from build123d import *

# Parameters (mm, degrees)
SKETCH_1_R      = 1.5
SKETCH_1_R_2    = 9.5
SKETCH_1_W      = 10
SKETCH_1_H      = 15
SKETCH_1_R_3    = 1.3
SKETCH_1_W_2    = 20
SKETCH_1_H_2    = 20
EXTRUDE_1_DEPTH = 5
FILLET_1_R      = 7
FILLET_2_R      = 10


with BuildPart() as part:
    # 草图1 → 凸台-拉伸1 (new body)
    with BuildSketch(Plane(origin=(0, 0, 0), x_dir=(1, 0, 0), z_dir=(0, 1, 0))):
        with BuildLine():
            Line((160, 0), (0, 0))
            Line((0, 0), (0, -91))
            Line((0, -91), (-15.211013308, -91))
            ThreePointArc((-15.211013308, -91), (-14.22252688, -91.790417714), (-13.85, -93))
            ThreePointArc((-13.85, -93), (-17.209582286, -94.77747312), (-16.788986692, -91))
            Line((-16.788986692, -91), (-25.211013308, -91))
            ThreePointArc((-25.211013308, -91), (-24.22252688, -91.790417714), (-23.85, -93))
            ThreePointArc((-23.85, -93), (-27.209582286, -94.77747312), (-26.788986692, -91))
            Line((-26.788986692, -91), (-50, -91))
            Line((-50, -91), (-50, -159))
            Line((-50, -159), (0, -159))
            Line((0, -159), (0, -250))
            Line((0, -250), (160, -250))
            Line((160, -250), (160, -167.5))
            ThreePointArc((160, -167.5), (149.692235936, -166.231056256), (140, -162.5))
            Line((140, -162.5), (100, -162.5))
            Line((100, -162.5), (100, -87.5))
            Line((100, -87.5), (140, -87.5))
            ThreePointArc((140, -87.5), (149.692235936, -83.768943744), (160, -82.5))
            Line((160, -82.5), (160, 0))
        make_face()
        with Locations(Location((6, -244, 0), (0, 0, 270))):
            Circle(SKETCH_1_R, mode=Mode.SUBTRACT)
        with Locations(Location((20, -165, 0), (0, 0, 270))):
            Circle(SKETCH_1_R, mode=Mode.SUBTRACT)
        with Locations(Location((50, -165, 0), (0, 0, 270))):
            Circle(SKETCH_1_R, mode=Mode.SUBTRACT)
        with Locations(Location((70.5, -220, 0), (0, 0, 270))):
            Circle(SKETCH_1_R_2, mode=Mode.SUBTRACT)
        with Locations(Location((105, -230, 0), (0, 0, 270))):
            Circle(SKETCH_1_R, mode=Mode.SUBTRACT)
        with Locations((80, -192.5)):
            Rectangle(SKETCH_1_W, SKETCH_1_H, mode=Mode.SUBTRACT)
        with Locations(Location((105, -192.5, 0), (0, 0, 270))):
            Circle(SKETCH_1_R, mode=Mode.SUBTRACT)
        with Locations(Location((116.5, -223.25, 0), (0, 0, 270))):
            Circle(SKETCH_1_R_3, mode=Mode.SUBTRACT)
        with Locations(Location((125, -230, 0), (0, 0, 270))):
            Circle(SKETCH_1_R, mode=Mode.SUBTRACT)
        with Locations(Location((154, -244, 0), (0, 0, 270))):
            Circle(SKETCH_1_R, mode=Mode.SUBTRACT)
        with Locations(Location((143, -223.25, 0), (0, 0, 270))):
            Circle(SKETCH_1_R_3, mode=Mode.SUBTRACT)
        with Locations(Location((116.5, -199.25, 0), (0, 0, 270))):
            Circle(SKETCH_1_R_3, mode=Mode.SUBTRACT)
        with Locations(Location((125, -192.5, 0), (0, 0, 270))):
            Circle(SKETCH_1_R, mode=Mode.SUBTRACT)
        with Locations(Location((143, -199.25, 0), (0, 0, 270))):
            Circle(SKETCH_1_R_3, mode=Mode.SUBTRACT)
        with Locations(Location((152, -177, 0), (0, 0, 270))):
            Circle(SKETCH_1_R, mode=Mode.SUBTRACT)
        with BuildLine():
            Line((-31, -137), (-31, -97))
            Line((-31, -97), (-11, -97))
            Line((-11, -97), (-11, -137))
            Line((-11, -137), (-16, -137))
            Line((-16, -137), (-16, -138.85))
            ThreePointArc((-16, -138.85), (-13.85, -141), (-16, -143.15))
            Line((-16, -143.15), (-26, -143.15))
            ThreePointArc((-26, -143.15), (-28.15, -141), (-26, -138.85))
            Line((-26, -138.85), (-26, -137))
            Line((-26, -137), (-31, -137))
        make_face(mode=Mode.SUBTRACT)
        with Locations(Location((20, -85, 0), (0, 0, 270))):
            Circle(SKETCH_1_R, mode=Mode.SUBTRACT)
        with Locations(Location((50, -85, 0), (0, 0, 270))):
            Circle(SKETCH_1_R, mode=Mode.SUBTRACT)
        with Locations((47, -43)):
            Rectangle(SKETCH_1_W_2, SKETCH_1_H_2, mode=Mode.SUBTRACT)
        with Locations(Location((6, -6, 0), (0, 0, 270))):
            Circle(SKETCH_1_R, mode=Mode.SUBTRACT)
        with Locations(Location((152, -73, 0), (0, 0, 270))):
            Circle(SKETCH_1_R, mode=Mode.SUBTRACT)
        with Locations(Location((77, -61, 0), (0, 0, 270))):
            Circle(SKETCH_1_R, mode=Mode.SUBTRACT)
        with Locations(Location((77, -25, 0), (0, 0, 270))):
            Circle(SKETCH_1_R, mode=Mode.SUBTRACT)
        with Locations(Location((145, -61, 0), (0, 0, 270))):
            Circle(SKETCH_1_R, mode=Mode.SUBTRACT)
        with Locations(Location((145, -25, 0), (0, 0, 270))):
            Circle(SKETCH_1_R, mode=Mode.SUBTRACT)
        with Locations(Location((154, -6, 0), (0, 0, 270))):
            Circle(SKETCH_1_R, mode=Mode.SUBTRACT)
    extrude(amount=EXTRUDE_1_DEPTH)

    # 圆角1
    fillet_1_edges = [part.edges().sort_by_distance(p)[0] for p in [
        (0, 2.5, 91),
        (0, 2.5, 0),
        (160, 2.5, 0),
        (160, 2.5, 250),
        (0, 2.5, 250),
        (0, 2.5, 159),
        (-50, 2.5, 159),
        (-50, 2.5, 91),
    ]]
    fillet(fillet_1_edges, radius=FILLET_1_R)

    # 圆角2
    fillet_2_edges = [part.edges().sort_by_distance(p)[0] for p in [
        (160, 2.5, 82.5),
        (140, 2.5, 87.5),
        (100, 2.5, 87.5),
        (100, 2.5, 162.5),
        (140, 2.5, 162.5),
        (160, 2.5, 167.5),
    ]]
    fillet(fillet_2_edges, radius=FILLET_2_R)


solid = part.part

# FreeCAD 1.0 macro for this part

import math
import FreeCAD as App
import Part
import Sketcher
Q = App.Units.Quantity


def edges_at(feature, points):
    """Names of the edges that pass closest to the given points."""
    edges = feature.Shape.Edges
    near = lambda p: min(range(len(edges)), key=lambda i: edges[i].distToShape(Part.Vertex(*p))[0])
    return sorted({f"Edge{near(p) + 1}" for p in points})

doc = App.newDocument("Part")
body = doc.addObject("PartDesign::Body", "Body")

sketch1 = body.newObject("Sketcher::SketchObject", "Sketch")
sketch1.AttachmentSupport = (doc.getObject("XZ_Plane"), [""])
sketch1.MapMode = "FlatFace"
sketch1.addGeometry(Part.LineSegment(App.Vector(160, 0, 0), App.Vector(0, 0, 0)), False)
sketch1.addGeometry(Part.LineSegment(App.Vector(0, 0, 0), App.Vector(0, 91, 0)), False)
sketch1.addGeometry(Part.LineSegment(App.Vector(0, 91, 0), App.Vector(-15.211013, 91, 0)), False)
sketch1.addGeometry(Part.ArcOfCircle(Part.Circle(App.Vector(-16, 93, 0), App.Vector(0, 0, 1), 2.15), math.radians(-68.471096), math.radians(0)), False)
sketch1.addGeometry(Part.ArcOfCircle(Part.Circle(App.Vector(-16, 93, 0), App.Vector(0, 0, 1), 2.15), math.radians(0), math.radians(248.471096)), False)
sketch1.addGeometry(Part.LineSegment(App.Vector(-16.788987, 91, 0), App.Vector(-25.211013, 91, 0)), False)
sketch1.addGeometry(Part.ArcOfCircle(Part.Circle(App.Vector(-26, 93, 0), App.Vector(0, 0, 1), 2.15), math.radians(-68.471096), math.radians(0)), False)
sketch1.addGeometry(Part.ArcOfCircle(Part.Circle(App.Vector(-26, 93, 0), App.Vector(0, 0, 1), 2.15), math.radians(0), math.radians(248.471096)), False)
sketch1.addGeometry(Part.LineSegment(App.Vector(-26.788987, 91, 0), App.Vector(-50, 91, 0)), False)
sketch1.addGeometry(Part.LineSegment(App.Vector(-50, 91, 0), App.Vector(-50, 159, 0)), False)
sketch1.addGeometry(Part.LineSegment(App.Vector(-50, 159, 0), App.Vector(0, 159, 0)), False)
sketch1.addGeometry(Part.LineSegment(App.Vector(0, 159, 0), App.Vector(0, 250, 0)), False)
sketch1.addGeometry(Part.LineSegment(App.Vector(0, 250, 0), App.Vector(160, 250, 0)), False)
sketch1.addGeometry(Part.LineSegment(App.Vector(160, 250, 0), App.Vector(160, 167.5, 0)), False)
sketch1.addGeometry(Part.ArcOfCircle(Part.Circle(App.Vector(160, 125, 0), App.Vector(0, 0, 1), 42.5), math.radians(90), math.radians(118.072487)), False)
sketch1.addGeometry(Part.LineSegment(App.Vector(140, 162.5, 0), App.Vector(100, 162.5, 0)), False)
sketch1.addGeometry(Part.LineSegment(App.Vector(100, 162.5, 0), App.Vector(100, 87.5, 0)), False)
sketch1.addGeometry(Part.LineSegment(App.Vector(100, 87.5, 0), App.Vector(140, 87.5, 0)), False)
sketch1.addGeometry(Part.ArcOfCircle(Part.Circle(App.Vector(160, 125, 0), App.Vector(0, 0, 1), 42.5), math.radians(-118.072487), math.radians(-90)), False)
sketch1.addGeometry(Part.LineSegment(App.Vector(160, 82.5, 0), App.Vector(160, 0, 0)), False)
sketch1.addGeometry(Part.Circle(App.Vector(6, 244, 0), App.Vector(0, 0, 1), 1.5), False)
sketch1.addGeometry(Part.Circle(App.Vector(20, 165, 0), App.Vector(0, 0, 1), 1.5), False)
sketch1.addGeometry(Part.Circle(App.Vector(50, 165, 0), App.Vector(0, 0, 1), 1.5), False)
sketch1.addGeometry(Part.Circle(App.Vector(70.5, 220, 0), App.Vector(0, 0, 1), 9.5), False)
sketch1.addGeometry(Part.Circle(App.Vector(105, 230, 0), App.Vector(0, 0, 1), 1.5), False)
sketch1.addGeometry(Part.LineSegment(App.Vector(85, 200, 0), App.Vector(75, 200, 0)), False)
sketch1.addGeometry(Part.LineSegment(App.Vector(75, 200, 0), App.Vector(75, 185, 0)), False)
sketch1.addGeometry(Part.LineSegment(App.Vector(75, 185, 0), App.Vector(85, 185, 0)), False)
sketch1.addGeometry(Part.LineSegment(App.Vector(85, 185, 0), App.Vector(85, 200, 0)), False)
sketch1.addGeometry(Part.Circle(App.Vector(105, 192.5, 0), App.Vector(0, 0, 1), 1.5), False)
sketch1.addGeometry(Part.Circle(App.Vector(116.5, 223.25, 0), App.Vector(0, 0, 1), 1.3), False)
sketch1.addGeometry(Part.Circle(App.Vector(125, 230, 0), App.Vector(0, 0, 1), 1.5), False)
sketch1.addGeometry(Part.Circle(App.Vector(154, 244, 0), App.Vector(0, 0, 1), 1.5), False)
sketch1.addGeometry(Part.Circle(App.Vector(143, 223.25, 0), App.Vector(0, 0, 1), 1.3), False)
sketch1.addGeometry(Part.Circle(App.Vector(116.5, 199.25, 0), App.Vector(0, 0, 1), 1.3), False)
sketch1.addGeometry(Part.Circle(App.Vector(125, 192.5, 0), App.Vector(0, 0, 1), 1.5), False)
sketch1.addGeometry(Part.Circle(App.Vector(143, 199.25, 0), App.Vector(0, 0, 1), 1.3), False)
sketch1.addGeometry(Part.Circle(App.Vector(152, 177, 0), App.Vector(0, 0, 1), 1.5), False)
sketch1.addGeometry(Part.LineSegment(App.Vector(-26, 137, 0), App.Vector(-31, 137, 0)), False)
sketch1.addGeometry(Part.LineSegment(App.Vector(-31, 137, 0), App.Vector(-31, 97, 0)), False)
sketch1.addGeometry(Part.LineSegment(App.Vector(-31, 97, 0), App.Vector(-11, 97, 0)), False)
sketch1.addGeometry(Part.LineSegment(App.Vector(-11, 97, 0), App.Vector(-11, 137, 0)), False)
sketch1.addGeometry(Part.LineSegment(App.Vector(-11, 137, 0), App.Vector(-16, 137, 0)), False)
sketch1.addGeometry(Part.LineSegment(App.Vector(-16, 137, 0), App.Vector(-16, 138.85, 0)), False)
sketch1.addGeometry(Part.ArcOfCircle(Part.Circle(App.Vector(-16, 141, 0), App.Vector(0, 0, 1), 2.15), math.radians(-90), math.radians(90)), False)
sketch1.addGeometry(Part.LineSegment(App.Vector(-16, 143.15, 0), App.Vector(-26, 143.15, 0)), False)
sketch1.addGeometry(Part.ArcOfCircle(Part.Circle(App.Vector(-26, 141, 0), App.Vector(0, 0, 1), 2.15), math.radians(90), math.radians(270)), False)
sketch1.addGeometry(Part.LineSegment(App.Vector(-26, 138.85, 0), App.Vector(-26, 137, 0)), False)
sketch1.addGeometry(Part.Circle(App.Vector(20, 85, 0), App.Vector(0, 0, 1), 1.5), False)
sketch1.addGeometry(Part.Circle(App.Vector(50, 85, 0), App.Vector(0, 0, 1), 1.5), False)
sketch1.addGeometry(Part.Circle(App.Vector(6, 6, 0), App.Vector(0, 0, 1), 1.5), False)
sketch1.addGeometry(Part.LineSegment(App.Vector(57, 53, 0), App.Vector(37, 53, 0)), False)
sketch1.addGeometry(Part.LineSegment(App.Vector(37, 53, 0), App.Vector(37, 33, 0)), False)
sketch1.addGeometry(Part.LineSegment(App.Vector(37, 33, 0), App.Vector(57, 33, 0)), False)
sketch1.addGeometry(Part.LineSegment(App.Vector(57, 33, 0), App.Vector(57, 53, 0)), False)
sketch1.addGeometry(Part.Circle(App.Vector(152, 73, 0), App.Vector(0, 0, 1), 1.5), False)
sketch1.addGeometry(Part.Circle(App.Vector(77, 61, 0), App.Vector(0, 0, 1), 1.5), False)
sketch1.addGeometry(Part.Circle(App.Vector(77, 25, 0), App.Vector(0, 0, 1), 1.5), False)
sketch1.addGeometry(Part.Circle(App.Vector(145, 61, 0), App.Vector(0, 0, 1), 1.5), False)
sketch1.addGeometry(Part.Circle(App.Vector(145, 25, 0), App.Vector(0, 0, 1), 1.5), False)
sketch1.addGeometry(Part.Circle(App.Vector(154, 6, 0), App.Vector(0, 0, 1), 1.5), False)
sketch1.addConstraint(Sketcher.Constraint("Coincident", 0, 2, 1, 1))
sketch1.addConstraint(Sketcher.Constraint("Coincident", 1, 2, 2, 1))
sketch1.addConstraint(Sketcher.Constraint("Coincident", 2, 2, 3, 1))
sketch1.addConstraint(Sketcher.Constraint("Tangent", 3, 2, 4, 1))
sketch1.addConstraint(Sketcher.Constraint("Coincident", 4, 2, 5, 1))
sketch1.addConstraint(Sketcher.Constraint("Coincident", 5, 2, 6, 1))
sketch1.addConstraint(Sketcher.Constraint("Tangent", 6, 2, 7, 1))
sketch1.addConstraint(Sketcher.Constraint("Coincident", 7, 2, 8, 1))
sketch1.addConstraint(Sketcher.Constraint("Coincident", 8, 2, 9, 1))
sketch1.addConstraint(Sketcher.Constraint("Coincident", 9, 2, 10, 1))
sketch1.addConstraint(Sketcher.Constraint("Coincident", 10, 2, 11, 1))
sketch1.addConstraint(Sketcher.Constraint("Coincident", 11, 2, 12, 1))
sketch1.addConstraint(Sketcher.Constraint("Coincident", 12, 2, 13, 1))
sketch1.addConstraint(Sketcher.Constraint("Coincident", 13, 2, 14, 1))
sketch1.addConstraint(Sketcher.Constraint("Coincident", 14, 2, 15, 1))
sketch1.addConstraint(Sketcher.Constraint("Coincident", 15, 2, 16, 1))
sketch1.addConstraint(Sketcher.Constraint("Coincident", 16, 2, 17, 1))
sketch1.addConstraint(Sketcher.Constraint("Coincident", 17, 2, 18, 1))
sketch1.addConstraint(Sketcher.Constraint("Coincident", 18, 2, 19, 1))
sketch1.addConstraint(Sketcher.Constraint("Coincident", 19, 2, 0, 1))
sketch1.addConstraint(Sketcher.Constraint("Coincident", 25, 2, 26, 1))
sketch1.addConstraint(Sketcher.Constraint("Coincident", 26, 2, 27, 1))
sketch1.addConstraint(Sketcher.Constraint("Coincident", 27, 2, 28, 1))
sketch1.addConstraint(Sketcher.Constraint("Coincident", 28, 2, 25, 1))
sketch1.addConstraint(Sketcher.Constraint("Coincident", 38, 2, 39, 1))
sketch1.addConstraint(Sketcher.Constraint("Coincident", 39, 2, 40, 1))
sketch1.addConstraint(Sketcher.Constraint("Coincident", 40, 2, 41, 1))
sketch1.addConstraint(Sketcher.Constraint("Coincident", 41, 2, 42, 1))
sketch1.addConstraint(Sketcher.Constraint("Coincident", 42, 2, 43, 1))
sketch1.addConstraint(Sketcher.Constraint("Coincident", 43, 2, 44, 1))
sketch1.addConstraint(Sketcher.Constraint("Tangent", 44, 2, 45, 1))
sketch1.addConstraint(Sketcher.Constraint("Tangent", 45, 2, 46, 1))
sketch1.addConstraint(Sketcher.Constraint("Coincident", 46, 2, 47, 1))
sketch1.addConstraint(Sketcher.Constraint("Coincident", 47, 2, 38, 1))
sketch1.addConstraint(Sketcher.Constraint("Coincident", 51, 2, 52, 1))
sketch1.addConstraint(Sketcher.Constraint("Coincident", 52, 2, 53, 1))
sketch1.addConstraint(Sketcher.Constraint("Coincident", 53, 2, 54, 1))
sketch1.addConstraint(Sketcher.Constraint("Coincident", 54, 2, 51, 1))
sketch1.addConstraint(Sketcher.Constraint("Horizontal", 0))
sketch1.addConstraint(Sketcher.Constraint("Vertical", 1))
sketch1.addConstraint(Sketcher.Constraint("Horizontal", 2))
sketch1.addConstraint(Sketcher.Constraint("Horizontal", 5))
sketch1.addConstraint(Sketcher.Constraint("Horizontal", 8))
sketch1.addConstraint(Sketcher.Constraint("Vertical", 9))
sketch1.addConstraint(Sketcher.Constraint("Horizontal", 10))
sketch1.addConstraint(Sketcher.Constraint("Vertical", 11))
sketch1.addConstraint(Sketcher.Constraint("Horizontal", 12))
sketch1.addConstraint(Sketcher.Constraint("Vertical", 13))
sketch1.addConstraint(Sketcher.Constraint("Horizontal", 15))
sketch1.addConstraint(Sketcher.Constraint("Vertical", 16))
sketch1.addConstraint(Sketcher.Constraint("Horizontal", 17))
sketch1.addConstraint(Sketcher.Constraint("Vertical", 19))
sketch1.addConstraint(Sketcher.Constraint("Horizontal", 25))
sketch1.addConstraint(Sketcher.Constraint("Vertical", 26))
sketch1.addConstraint(Sketcher.Constraint("Horizontal", 27))
sketch1.addConstraint(Sketcher.Constraint("Vertical", 28))
sketch1.addConstraint(Sketcher.Constraint("Horizontal", 38))
sketch1.addConstraint(Sketcher.Constraint("Vertical", 39))
sketch1.addConstraint(Sketcher.Constraint("Horizontal", 40))
sketch1.addConstraint(Sketcher.Constraint("Vertical", 41))
sketch1.addConstraint(Sketcher.Constraint("Horizontal", 42))
sketch1.addConstraint(Sketcher.Constraint("Vertical", 43))
sketch1.addConstraint(Sketcher.Constraint("Horizontal", 45))
sketch1.addConstraint(Sketcher.Constraint("Vertical", 47))
sketch1.addConstraint(Sketcher.Constraint("Horizontal", 51))
sketch1.addConstraint(Sketcher.Constraint("Vertical", 52))
sketch1.addConstraint(Sketcher.Constraint("Horizontal", 53))
sketch1.addConstraint(Sketcher.Constraint("Vertical", 54))
sketch1.addConstraint(Sketcher.Constraint("Coincident", 0, 2, -1, 1))
sketch1.addConstraint(Sketcher.Constraint("Coincident", 18, 3, 14, 3))
sketch1.addConstraint(Sketcher.Constraint("Equal", 3, 4))
sketch1.addConstraint(Sketcher.Constraint("Equal", 4, 6))
sketch1.addConstraint(Sketcher.Constraint("Equal", 6, 7))
sketch1.addConstraint(Sketcher.Constraint("Equal", 14, 18))
sketch1.addConstraint(Sketcher.Constraint("Equal", 20, 21))
sketch1.addConstraint(Sketcher.Constraint("Equal", 21, 22))
sketch1.addConstraint(Sketcher.Constraint("Equal", 22, 24))
sketch1.addConstraint(Sketcher.Constraint("Equal", 24, 29))
sketch1.addConstraint(Sketcher.Constraint("Equal", 29, 31))
sketch1.addConstraint(Sketcher.Constraint("Equal", 31, 32))
sketch1.addConstraint(Sketcher.Constraint("Equal", 30, 33))
sketch1.addConstraint(Sketcher.Constraint("Equal", 33, 34))
sketch1.addConstraint(Sketcher.Constraint("Equal", 32, 35))
sketch1.addConstraint(Sketcher.Constraint("Equal", 34, 36))
sketch1.addConstraint(Sketcher.Constraint("Equal", 35, 37))
sketch1.addConstraint(Sketcher.Constraint("Equal", 7, 44))
sketch1.addConstraint(Sketcher.Constraint("Equal", 44, 46))
sketch1.addConstraint(Sketcher.Constraint("Equal", 37, 48))
sketch1.addConstraint(Sketcher.Constraint("Equal", 48, 49))
sketch1.addConstraint(Sketcher.Constraint("Equal", 49, 50))
sketch1.addConstraint(Sketcher.Constraint("Equal", 50, 55))
sketch1.addConstraint(Sketcher.Constraint("Equal", 55, 56))
sketch1.addConstraint(Sketcher.Constraint("Equal", 56, 57))
sketch1.addConstraint(Sketcher.Constraint("Equal", 57, 58))
sketch1.addConstraint(Sketcher.Constraint("Equal", 58, 59))
sketch1.addConstraint(Sketcher.Constraint("Equal", 59, 60))
sketch1.addConstraint(Sketcher.Constraint("PointOnObject", 10, 2, -2))
sketch1.addConstraint(Sketcher.Constraint("Horizontal", 4, 3, 6, 3))
sketch1.addConstraint(Sketcher.Constraint("Horizontal", 21, 3, 22, 3))
sketch1.addConstraint(Sketcher.Constraint("Horizontal", 24, 3, 31, 3))
sketch1.addConstraint(Sketcher.Constraint("Horizontal", 20, 3, 32, 3))
sketch1.addConstraint(Sketcher.Constraint("Horizontal", 30, 3, 33, 3))
sketch1.addConstraint(Sketcher.Constraint("Horizontal", 29, 3, 35, 3))
sketch1.addConstraint(Sketcher.Constraint("Horizontal", 34, 3, 36, 3))
sketch1.addConstraint(Sketcher.Constraint("Horizontal", 48, 3, 49, 3))
sketch1.addConstraint(Sketcher.Constraint("Horizontal", 56, 3, 58, 3))
sketch1.addConstraint(Sketcher.Constraint("Horizontal", 57, 3, 59, 3))
sketch1.addConstraint(Sketcher.Constraint("Horizontal", 50, 3, 60, 3))
sketch1.addConstraint(Sketcher.Constraint("Horizontal", 7, 3, 3, 2))
sketch1.addConstraint(Sketcher.Constraint("Horizontal", 2, 2, 4, 2))
sketch1.addConstraint(Sketcher.Constraint("Horizontal", 3, 2, 6, 2))
sketch1.addConstraint(Sketcher.Constraint("Horizontal", 5, 2, 7, 2))
sketch1.addConstraint(Sketcher.Constraint("Horizontal", 38, 2, 41, 2))
sketch1.addConstraint(Sketcher.Constraint("Vertical", 24, 3, 29, 3))
sketch1.addConstraint(Sketcher.Constraint("Vertical", 30, 3, 34, 3))
sketch1.addConstraint(Sketcher.Constraint("Vertical", 31, 3, 35, 3))
sketch1.addConstraint(Sketcher.Constraint("Vertical", 33, 3, 36, 3))
sketch1.addConstraint(Sketcher.Constraint("Vertical", 4, 3, 44, 3))
sketch1.addConstraint(Sketcher.Constraint("Vertical", 7, 3, 46, 3))
sketch1.addConstraint(Sketcher.Constraint("Vertical", 21, 3, 48, 3))
sketch1.addConstraint(Sketcher.Constraint("Vertical", 22, 3, 49, 3))
sketch1.addConstraint(Sketcher.Constraint("Vertical", 20, 3, 50, 3))
sketch1.addConstraint(Sketcher.Constraint("Vertical", 37, 3, 55, 3))
sketch1.addConstraint(Sketcher.Constraint("Vertical", 56, 3, 57, 3))
sketch1.addConstraint(Sketcher.Constraint("Vertical", 58, 3, 59, 3))
sketch1.addConstraint(Sketcher.Constraint("Vertical", 32, 3, 60, 3))
sketch1.addConstraint(Sketcher.Constraint("Vertical", 18, 3, 12, 2))
sketch1.addConstraint(Sketcher.Constraint("Vertical", 14, 2, 17, 2))
sketch1.addConstraint(Sketcher.Constraint("Vertical", 13, 2, 18, 2))
sketch1.addConstraint(Sketcher.Constraint("Vertical", 44, 3, 42, 2))
sketch1.addConstraint(Sketcher.Constraint("Vertical", 45, 2, 46, 2))
sketch1.addConstraint(Sketcher.Constraint("Equal", 38, 42))
sketch1.addConstraint(Sketcher.Constraint("Equal", 27, 45))
sketch1.addConstraint(Sketcher.Constraint("Equal", 40, 51))
sketch1.addConstraint(Sketcher.Constraint("Equal", 1, 11))
sketch1.addConstraint(Sketcher.Constraint("Equal", 13, 19))
sketch1.addConstraint(Sketcher.Constraint("Equal", 17, 39))
sketch1.addConstraint(Sketcher.Constraint("Equal", 53, 52))
sketch1.addConstraint(Sketcher.Constraint("Diameter", 20, Q("3 mm")))
sketch1.addConstraint(Sketcher.Constraint("Diameter", 23, Q("19 mm")))
sketch1.addConstraint(Sketcher.Constraint("Diameter", 30, Q("2.6 mm")))
sketch1.addConstraint(Sketcher.Constraint("Radius", 14, Q("42.5 mm")))
sketch1.addConstraint(Sketcher.Constraint("DistanceX", 0, 2, 0, 1, Q("160 mm")))
sketch1.addConstraint(Sketcher.Constraint("DistanceX", 10, 1, 10, 2, Q("50 mm")))
sketch1.addConstraint(Sketcher.Constraint("DistanceX", 15, 2, 15, 1, Q("40 mm")))
sketch1.addConstraint(Sketcher.Constraint("DistanceX", 25, 2, 25, 1, Q("10 mm")))
sketch1.addConstraint(Sketcher.Constraint("DistanceX", 38, 2, 38, 1, Q("5 mm")))
sketch1.addConstraint(Sketcher.Constraint("DistanceY", 1, 1, 1, 2, Q("91 mm")))
sketch1.addConstraint(Sketcher.Constraint("DistanceY", 9, 1, 9, 2, Q("68 mm")))
sketch1.addConstraint(Sketcher.Constraint("DistanceY", 16, 2, 16, 1, Q("75 mm")))
sketch1.addConstraint(Sketcher.Constraint("DistanceY", 26, 2, 26, 1, Q("15 mm")))
sketch1.addConstraint(Sketcher.Constraint("Radius", 3, Q("2.15 mm")))
sketch1.addConstraint(Sketcher.Constraint("DistanceX", 3, 3, -1, 1, Q("16 mm")))
sketch1.addConstraint(Sketcher.Constraint("DistanceY", -1, 1, 3, 3, Q("93 mm")))
sketch1.addConstraint(Sketcher.Constraint("DistanceX", -1, 1, 20, 3, Q("6 mm")))
sketch1.addConstraint(Sketcher.Constraint("DistanceY", -1, 1, 20, 3, Q("244 mm")))
sketch1.addConstraint(Sketcher.Constraint("DistanceX", -1, 1, 21, 3, Q("20 mm")))
sketch1.addConstraint(Sketcher.Constraint("DistanceY", -1, 1, 21, 3, Q("165 mm")))
sketch1.addConstraint(Sketcher.Constraint("DistanceX", -1, 1, 22, 3, Q("50 mm")))
sketch1.addConstraint(Sketcher.Constraint("DistanceY", -1, 1, 23, 3, Q("220 mm")))
sketch1.addConstraint(Sketcher.Constraint("DistanceX", -1, 1, 24, 3, Q("105 mm")))
sketch1.addConstraint(Sketcher.Constraint("DistanceY", -1, 1, 24, 3, Q("230 mm")))
sketch1.addConstraint(Sketcher.Constraint("DistanceX", -1, 1, 31, 3, Q("125 mm")))
sketch1.addConstraint(Sketcher.Constraint("DistanceX", -1, 1, 32, 3, Q("154 mm")))
sketch1.addConstraint(Sketcher.Constraint("DistanceX", -1, 1, 33, 3, Q("143 mm")))
sketch1.addConstraint(Sketcher.Constraint("DistanceX", -1, 1, 37, 3, Q("152 mm")))
sketch1.addConstraint(Sketcher.Constraint("DistanceY", -1, 1, 37, 3, Q("177 mm")))
sketch1.addConstraint(Sketcher.Constraint("DistanceY", -1, 1, 44, 3, Q("141 mm")))
sketch1.addConstraint(Sketcher.Constraint("DistanceY", -1, 1, 48, 3, Q("85 mm")))
sketch1.addConstraint(Sketcher.Constraint("DistanceY", -1, 1, 50, 3, Q("6 mm")))
sketch1.addConstraint(Sketcher.Constraint("DistanceY", -1, 1, 55, 3, Q("73 mm")))
sketch1.addConstraint(Sketcher.Constraint("DistanceX", -1, 1, 56, 3, Q("77 mm")))
sketch1.addConstraint(Sketcher.Constraint("DistanceY", -1, 1, 56, 3, Q("61 mm")))
sketch1.addConstraint(Sketcher.Constraint("DistanceY", -1, 1, 57, 3, Q("25 mm")))
sketch1.addConstraint(Sketcher.Constraint("DistanceX", -1, 1, 58, 3, Q("145 mm")))
sketch1.addConstraint(Sketcher.Constraint("DistanceX", -1, 1, 25, 2, Q("75 mm")))
sketch1.addConstraint(Sketcher.Constraint("DistanceY", -1, 1, 25, 2, Q("200 mm")))
sketch1.addConstraint(Sketcher.Constraint("DistanceY", -1, 1, 38, 2, Q("137 mm")))
sketch1.addConstraint(Sketcher.Constraint("DistanceX", -1, 1, 51, 2, Q("37 mm")))
sketch1.addConstraint(Sketcher.Constraint("DistanceY", -1, 1, 51, 2, Q("53 mm")))
sketch1.addConstraint(Sketcher.Constraint("DistanceX", -1, 1, 23, 3, Q("70.5 mm")))
sketch1.addConstraint(Sketcher.Constraint("DistanceY", -1, 1, 29, 3, Q("192.5 mm")))
sketch1.addConstraint(Sketcher.Constraint("DistanceX", -1, 1, 30, 3, Q("116.5 mm")))
sketch1.addConstraint(Sketcher.Constraint("DistanceY", -1, 1, 30, 3, Q("223.25 mm")))
sketch1.addConstraint(Sketcher.Constraint("DistanceY", -1, 1, 34, 3, Q("199.25 mm")))
pad1 = body.newObject("PartDesign::Pad", "Pad")
pad1.Profile = sketch1
pad1.Length = 5
pad1.Reversed = True
doc.recompute()

fillet = body.newObject("PartDesign::Fillet", "Fillet")
fillet.Base = (pad1, edges_at(pad1, [
    (0, 2.5, 91),
    (0, 2.5, 0),
    (160, 2.5, 0),
    (160, 2.5, 250),
    (0, 2.5, 250),
    (0, 2.5, 159),
    (-50, 2.5, 159),
    (-50, 2.5, 91),
]))
fillet.Radius = 7
doc.recompute()

fillet2 = body.newObject("PartDesign::Fillet", "Fillet001")
fillet2.Base = (fillet, edges_at(fillet, [
    (160, 2.5, 82.5),
    (140, 2.5, 87.5),
    (100, 2.5, 87.5),
    (100, 2.5, 162.5),
    (140, 2.5, 162.5),
    (160, 2.5, 167.5),
]))
fillet2.Radius = 10

doc.recompute()
